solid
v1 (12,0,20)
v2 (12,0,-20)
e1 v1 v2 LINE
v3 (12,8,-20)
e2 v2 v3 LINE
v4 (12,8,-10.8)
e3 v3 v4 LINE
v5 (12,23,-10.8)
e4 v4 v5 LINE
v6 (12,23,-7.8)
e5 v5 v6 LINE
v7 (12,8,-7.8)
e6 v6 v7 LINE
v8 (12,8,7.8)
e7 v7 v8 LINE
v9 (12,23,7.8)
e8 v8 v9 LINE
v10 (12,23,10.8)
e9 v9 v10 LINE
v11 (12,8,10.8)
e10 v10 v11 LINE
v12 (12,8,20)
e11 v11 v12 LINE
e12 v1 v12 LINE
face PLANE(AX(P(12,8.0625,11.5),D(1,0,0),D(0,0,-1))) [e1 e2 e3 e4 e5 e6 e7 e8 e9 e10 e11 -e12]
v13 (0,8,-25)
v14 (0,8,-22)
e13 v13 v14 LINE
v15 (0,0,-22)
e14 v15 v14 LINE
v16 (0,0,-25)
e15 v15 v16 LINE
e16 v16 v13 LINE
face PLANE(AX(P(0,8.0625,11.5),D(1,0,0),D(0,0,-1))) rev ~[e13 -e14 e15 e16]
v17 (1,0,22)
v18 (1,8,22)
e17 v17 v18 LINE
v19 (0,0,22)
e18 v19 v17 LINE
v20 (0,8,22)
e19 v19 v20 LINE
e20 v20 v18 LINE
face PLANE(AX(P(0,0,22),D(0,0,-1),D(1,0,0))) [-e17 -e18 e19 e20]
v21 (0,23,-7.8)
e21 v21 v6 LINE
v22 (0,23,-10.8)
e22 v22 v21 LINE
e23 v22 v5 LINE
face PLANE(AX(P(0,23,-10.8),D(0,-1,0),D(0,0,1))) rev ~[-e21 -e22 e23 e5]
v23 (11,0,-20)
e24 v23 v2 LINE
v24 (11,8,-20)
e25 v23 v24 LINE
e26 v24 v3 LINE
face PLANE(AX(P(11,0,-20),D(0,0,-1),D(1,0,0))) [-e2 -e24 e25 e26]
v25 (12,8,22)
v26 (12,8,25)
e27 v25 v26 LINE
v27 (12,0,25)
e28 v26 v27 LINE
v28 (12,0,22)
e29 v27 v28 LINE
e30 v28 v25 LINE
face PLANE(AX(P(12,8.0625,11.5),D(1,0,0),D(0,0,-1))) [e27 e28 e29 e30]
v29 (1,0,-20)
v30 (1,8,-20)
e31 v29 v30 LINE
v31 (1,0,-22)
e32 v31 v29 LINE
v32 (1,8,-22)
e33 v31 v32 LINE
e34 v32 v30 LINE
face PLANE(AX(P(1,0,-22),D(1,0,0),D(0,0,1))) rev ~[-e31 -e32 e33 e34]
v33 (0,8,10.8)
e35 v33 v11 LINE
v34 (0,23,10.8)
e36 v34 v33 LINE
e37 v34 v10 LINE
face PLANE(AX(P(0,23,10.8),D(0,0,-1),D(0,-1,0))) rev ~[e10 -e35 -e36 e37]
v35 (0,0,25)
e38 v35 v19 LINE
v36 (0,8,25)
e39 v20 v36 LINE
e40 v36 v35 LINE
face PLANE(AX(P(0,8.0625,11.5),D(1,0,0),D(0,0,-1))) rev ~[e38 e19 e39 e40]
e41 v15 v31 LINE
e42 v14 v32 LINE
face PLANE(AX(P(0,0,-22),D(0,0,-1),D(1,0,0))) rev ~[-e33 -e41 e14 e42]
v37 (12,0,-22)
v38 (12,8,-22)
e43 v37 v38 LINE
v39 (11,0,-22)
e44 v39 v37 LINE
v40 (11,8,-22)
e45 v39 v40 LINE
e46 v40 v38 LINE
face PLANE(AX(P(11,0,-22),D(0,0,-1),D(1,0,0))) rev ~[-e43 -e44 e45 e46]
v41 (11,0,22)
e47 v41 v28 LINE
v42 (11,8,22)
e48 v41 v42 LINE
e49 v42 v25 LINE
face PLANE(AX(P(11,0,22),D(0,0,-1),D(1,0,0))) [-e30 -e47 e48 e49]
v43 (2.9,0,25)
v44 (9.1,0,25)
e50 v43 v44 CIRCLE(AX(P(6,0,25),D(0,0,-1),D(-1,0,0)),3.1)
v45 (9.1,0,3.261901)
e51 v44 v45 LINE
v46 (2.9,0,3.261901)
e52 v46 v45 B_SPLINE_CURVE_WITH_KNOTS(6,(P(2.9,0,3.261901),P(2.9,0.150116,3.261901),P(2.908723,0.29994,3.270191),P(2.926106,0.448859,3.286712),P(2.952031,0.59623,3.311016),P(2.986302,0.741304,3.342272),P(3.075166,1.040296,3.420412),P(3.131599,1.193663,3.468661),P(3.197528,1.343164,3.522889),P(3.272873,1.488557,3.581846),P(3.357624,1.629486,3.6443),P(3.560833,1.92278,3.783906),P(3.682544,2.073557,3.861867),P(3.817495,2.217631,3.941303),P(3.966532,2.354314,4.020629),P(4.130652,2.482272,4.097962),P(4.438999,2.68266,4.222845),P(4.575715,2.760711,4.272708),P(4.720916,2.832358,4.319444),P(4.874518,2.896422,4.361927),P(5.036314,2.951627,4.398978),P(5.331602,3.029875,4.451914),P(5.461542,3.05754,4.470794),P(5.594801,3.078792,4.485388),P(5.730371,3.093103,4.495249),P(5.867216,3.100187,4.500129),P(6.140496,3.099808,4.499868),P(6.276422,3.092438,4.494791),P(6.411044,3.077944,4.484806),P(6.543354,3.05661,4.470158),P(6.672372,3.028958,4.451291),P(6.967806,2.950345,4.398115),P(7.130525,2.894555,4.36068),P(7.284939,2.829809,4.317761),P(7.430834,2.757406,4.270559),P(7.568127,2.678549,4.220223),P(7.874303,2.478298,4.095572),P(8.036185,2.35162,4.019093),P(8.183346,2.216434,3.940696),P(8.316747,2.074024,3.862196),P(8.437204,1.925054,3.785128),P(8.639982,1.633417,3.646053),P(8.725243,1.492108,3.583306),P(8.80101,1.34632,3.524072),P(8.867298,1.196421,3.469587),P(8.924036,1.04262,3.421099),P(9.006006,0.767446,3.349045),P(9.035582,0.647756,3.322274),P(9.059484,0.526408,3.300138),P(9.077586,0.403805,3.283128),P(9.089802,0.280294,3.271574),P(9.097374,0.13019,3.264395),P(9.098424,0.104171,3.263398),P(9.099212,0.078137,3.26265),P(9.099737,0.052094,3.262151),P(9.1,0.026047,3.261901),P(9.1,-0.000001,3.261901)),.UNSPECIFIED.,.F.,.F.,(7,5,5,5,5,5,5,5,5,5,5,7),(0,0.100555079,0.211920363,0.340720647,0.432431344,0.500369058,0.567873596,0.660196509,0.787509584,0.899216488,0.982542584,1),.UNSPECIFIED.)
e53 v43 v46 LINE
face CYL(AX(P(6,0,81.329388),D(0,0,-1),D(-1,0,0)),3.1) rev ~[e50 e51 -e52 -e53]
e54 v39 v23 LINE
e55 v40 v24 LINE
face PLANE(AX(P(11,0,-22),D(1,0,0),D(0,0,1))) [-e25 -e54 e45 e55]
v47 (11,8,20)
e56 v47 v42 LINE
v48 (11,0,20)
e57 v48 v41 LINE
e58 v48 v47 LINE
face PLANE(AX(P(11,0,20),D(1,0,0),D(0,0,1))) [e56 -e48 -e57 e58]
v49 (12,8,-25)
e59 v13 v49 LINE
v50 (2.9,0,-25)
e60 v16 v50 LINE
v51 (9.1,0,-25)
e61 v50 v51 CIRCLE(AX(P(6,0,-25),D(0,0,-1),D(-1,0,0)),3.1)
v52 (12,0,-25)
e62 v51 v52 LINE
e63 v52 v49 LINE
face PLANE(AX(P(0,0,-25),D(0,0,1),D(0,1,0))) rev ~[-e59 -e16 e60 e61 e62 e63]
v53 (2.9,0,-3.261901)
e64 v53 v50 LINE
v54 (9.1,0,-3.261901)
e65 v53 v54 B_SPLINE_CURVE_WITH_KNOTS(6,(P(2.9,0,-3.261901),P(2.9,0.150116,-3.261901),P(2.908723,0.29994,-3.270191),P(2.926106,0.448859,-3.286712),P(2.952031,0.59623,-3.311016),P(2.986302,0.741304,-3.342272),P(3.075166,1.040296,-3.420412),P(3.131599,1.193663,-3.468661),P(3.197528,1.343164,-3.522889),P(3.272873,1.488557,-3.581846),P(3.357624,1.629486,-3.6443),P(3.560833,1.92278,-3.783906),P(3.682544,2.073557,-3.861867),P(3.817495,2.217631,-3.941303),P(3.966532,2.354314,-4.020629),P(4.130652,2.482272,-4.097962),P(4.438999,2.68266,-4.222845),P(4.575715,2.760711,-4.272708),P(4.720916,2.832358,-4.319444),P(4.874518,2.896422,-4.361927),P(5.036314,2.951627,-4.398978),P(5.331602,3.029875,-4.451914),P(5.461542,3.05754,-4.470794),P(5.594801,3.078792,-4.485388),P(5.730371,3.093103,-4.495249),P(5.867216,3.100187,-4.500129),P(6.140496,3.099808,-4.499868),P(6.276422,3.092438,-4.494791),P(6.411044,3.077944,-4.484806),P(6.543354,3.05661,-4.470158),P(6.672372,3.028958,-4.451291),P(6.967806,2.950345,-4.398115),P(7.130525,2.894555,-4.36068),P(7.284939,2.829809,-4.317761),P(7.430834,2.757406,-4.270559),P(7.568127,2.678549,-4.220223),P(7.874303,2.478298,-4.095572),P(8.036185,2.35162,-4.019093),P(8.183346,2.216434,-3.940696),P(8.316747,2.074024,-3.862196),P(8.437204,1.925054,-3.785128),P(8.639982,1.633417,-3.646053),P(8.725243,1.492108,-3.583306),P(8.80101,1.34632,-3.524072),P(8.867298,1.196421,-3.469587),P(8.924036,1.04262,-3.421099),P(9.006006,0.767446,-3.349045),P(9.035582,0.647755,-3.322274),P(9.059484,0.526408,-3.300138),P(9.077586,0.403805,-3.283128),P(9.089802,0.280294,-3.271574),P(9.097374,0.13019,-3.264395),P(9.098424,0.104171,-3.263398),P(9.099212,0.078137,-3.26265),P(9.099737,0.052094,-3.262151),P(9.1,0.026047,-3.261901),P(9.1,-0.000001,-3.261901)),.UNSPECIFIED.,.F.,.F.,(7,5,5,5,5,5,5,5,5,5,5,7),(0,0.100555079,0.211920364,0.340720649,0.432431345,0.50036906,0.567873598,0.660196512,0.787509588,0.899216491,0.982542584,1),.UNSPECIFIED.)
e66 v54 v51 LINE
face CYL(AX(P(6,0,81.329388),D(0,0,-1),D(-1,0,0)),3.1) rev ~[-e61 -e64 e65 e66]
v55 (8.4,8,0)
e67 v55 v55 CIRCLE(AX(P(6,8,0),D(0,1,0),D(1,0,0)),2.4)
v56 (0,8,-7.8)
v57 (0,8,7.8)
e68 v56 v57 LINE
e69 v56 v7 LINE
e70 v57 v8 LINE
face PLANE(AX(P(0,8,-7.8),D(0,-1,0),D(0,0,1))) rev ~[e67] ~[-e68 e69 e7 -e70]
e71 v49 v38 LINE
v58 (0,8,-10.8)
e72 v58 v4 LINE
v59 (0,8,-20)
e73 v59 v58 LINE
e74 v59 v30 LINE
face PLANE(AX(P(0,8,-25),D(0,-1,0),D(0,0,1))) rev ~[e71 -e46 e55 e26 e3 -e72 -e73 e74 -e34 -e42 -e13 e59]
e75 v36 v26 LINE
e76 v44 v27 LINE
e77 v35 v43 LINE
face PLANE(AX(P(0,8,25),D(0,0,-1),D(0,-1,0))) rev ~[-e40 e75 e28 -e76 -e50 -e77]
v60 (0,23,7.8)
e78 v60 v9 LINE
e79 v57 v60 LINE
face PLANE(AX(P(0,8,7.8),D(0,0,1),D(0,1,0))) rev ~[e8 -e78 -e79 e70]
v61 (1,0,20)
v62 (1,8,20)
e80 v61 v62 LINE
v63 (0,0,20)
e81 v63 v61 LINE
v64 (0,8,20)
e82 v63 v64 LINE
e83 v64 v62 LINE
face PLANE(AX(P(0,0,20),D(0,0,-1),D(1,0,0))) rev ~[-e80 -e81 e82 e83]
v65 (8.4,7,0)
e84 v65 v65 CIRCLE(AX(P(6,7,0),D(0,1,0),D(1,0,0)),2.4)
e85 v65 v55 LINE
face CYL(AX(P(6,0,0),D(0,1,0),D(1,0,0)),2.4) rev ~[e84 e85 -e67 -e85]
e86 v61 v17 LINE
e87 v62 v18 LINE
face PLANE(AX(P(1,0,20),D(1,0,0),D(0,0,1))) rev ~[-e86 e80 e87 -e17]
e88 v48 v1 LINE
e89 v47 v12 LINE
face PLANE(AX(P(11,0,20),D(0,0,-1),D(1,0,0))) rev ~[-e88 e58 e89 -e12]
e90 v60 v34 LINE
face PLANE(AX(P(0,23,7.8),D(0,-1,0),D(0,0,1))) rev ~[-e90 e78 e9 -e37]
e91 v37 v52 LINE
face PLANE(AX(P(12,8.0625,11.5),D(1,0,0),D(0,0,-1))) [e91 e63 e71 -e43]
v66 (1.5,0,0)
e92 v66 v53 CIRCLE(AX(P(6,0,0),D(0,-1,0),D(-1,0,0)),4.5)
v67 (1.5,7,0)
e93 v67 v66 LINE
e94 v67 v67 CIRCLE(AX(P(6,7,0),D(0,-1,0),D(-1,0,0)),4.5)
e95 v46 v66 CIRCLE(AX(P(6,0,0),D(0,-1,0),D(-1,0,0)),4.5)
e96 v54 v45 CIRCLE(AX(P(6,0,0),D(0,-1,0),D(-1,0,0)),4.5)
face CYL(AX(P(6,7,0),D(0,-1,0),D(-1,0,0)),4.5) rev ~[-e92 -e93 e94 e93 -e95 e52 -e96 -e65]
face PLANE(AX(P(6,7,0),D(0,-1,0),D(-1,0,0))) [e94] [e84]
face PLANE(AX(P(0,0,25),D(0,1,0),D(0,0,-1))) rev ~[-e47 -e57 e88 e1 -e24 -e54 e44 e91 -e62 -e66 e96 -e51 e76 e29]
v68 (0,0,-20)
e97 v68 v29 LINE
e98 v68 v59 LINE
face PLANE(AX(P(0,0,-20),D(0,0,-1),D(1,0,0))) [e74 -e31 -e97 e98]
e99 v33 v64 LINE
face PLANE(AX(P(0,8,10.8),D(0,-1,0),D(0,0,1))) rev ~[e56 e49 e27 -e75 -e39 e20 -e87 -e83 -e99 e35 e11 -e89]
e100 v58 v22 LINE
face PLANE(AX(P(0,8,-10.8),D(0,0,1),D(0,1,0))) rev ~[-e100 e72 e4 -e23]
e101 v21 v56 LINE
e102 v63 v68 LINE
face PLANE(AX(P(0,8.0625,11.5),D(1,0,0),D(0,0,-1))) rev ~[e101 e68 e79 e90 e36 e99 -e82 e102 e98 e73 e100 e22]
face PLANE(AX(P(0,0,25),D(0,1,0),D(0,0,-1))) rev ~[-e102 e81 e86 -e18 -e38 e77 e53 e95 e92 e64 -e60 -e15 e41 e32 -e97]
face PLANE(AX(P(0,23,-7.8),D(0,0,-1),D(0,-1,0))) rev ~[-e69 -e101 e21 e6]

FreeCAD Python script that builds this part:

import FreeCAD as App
import Part
import Sketcher

V = App.Vector

doc = App.newDocument("Part")
body = doc.addObject("PartDesign::Body", "Body")

# Sketch on YZ plane
sketch1 = doc.addObject("Sketcher::SketchObject", "Sketch")
body.addObject(sketch1)
sketch1.AttachmentSupport = (doc.YZ_Plane, [""])
sketch1.MapMode = "FlatFace"
sketch1.addGeometry([
    Part.LineSegment(V(0, 25, 0), V(0, -25, 0)),  # 0
    Part.LineSegment(V(0, -25, 0), V(8, -25, 0)),  # 1
    Part.LineSegment(V(8, -25, 0), V(8, -10.8, 0)),  # 2
    Part.LineSegment(V(8, -10.8, 0), V(23, -10.8, 0)),  # 3
    Part.LineSegment(V(23, -10.8, 0), V(23, -7.8, 0)),  # 4
    Part.LineSegment(V(23, -7.8, 0), V(8, -7.8, 0)),  # 5
    Part.LineSegment(V(8, -7.8, 0), V(8, 7.8, 0)),  # 6
    Part.LineSegment(V(8, 7.8, 0), V(23, 7.8, 0)),  # 7
    Part.LineSegment(V(23, 7.8, 0), V(23, 10.8, 0)),  # 8
    Part.LineSegment(V(23, 10.8, 0), V(8, 10.8, 0)),  # 9
    Part.LineSegment(V(8, 10.8, 0), V(8, 25, 0)),  # 10
    Part.LineSegment(V(8, 25, 0), V(0, 25, 0)),  # 11
], False)
sketch1.addConstraint([
    Sketcher.Constraint("Coincident", 0, 2, 1, 1),
    Sketcher.Constraint("Coincident", 1, 2, 2, 1),
    Sketcher.Constraint("Coincident", 2, 2, 3, 1),
    Sketcher.Constraint("Coincident", 3, 2, 4, 1),
    Sketcher.Constraint("Coincident", 4, 2, 5, 1),
    Sketcher.Constraint("Coincident", 5, 2, 6, 1),
    Sketcher.Constraint("Coincident", 6, 2, 7, 1),
    Sketcher.Constraint("Coincident", 7, 2, 8, 1),
    Sketcher.Constraint("Coincident", 8, 2, 9, 1),
    Sketcher.Constraint("Coincident", 9, 2, 10, 1),
    Sketcher.Constraint("Coincident", 10, 2, 11, 1),
    Sketcher.Constraint("Coincident", 11, 2, 0, 1),
    Sketcher.Constraint("Vertical", 0),
    Sketcher.Constraint("Horizontal", 1),
    Sketcher.Constraint("Vertical", 2),
    Sketcher.Constraint("Horizontal", 3),
    Sketcher.Constraint("Vertical", 4),
    Sketcher.Constraint("Horizontal", 5),
    Sketcher.Constraint("Vertical", 6),
    Sketcher.Constraint("Horizontal", 7),
    Sketcher.Constraint("Vertical", 8),
    Sketcher.Constraint("Horizontal", 9),
    Sketcher.Constraint("Vertical", 10),
    Sketcher.Constraint("Horizontal", 11),
    Sketcher.Constraint("Symmetric", 0, 2, 11, 2, -1, 1),
    Sketcher.Constraint("Symmetric", 4, 2, 7, 2, -1),
    Sketcher.Constraint("Symmetric", 2, 2, 9, 2, -1),
    Sketcher.Constraint("Vertical", 2, 2, 5, 2),
    Sketcher.Constraint("DistanceX", 1, 1, 1, 2, 8.0),
    Sketcher.Constraint("DistanceX", 3, 1, 3, 2, 15.0),
    Sketcher.Constraint("DistanceY", 0, 2, 0, 1, 50.0),
    Sketcher.Constraint("DistanceY", 4, 1, 4, 2, 3.0),
    Sketcher.Constraint("DistanceY", 2, 1, 2, 2, 14.2),
])
pad1 = doc.addObject("PartDesign::Pad", "Pad")
body.addObject(pad1)
pad1.Profile = sketch1
pad1.Length = 12

# Sketch on XZ plane
sketch2 = doc.addObject("Sketcher::SketchObject", "Sketch001")
body.addObject(sketch2)
sketch2.AttachmentSupport = (doc.XZ_Plane, [""])
sketch2.MapMode = "FlatFace"
sketch2.addGeometry(Part.Circle(V(6, 0, 0), V(0, 0, 1), 2.4), False)
sketch2.addConstraint([
    Sketcher.Constraint("PointOnObject", 0, 3, -1),
    Sketcher.Constraint("Diameter", 0, 4.8),
    Sketcher.Constraint("DistanceX", -1, 1, 0, 3, 6.0),
])
doc.recompute()
hole = doc.addObject("PartDesign::Hole", "Hole")
body.addObject(hole)
hole.Profile = sketch2
hole.ThreadType = "None"
hole.Diameter = 4.8
hole.DepthType = "ThroughAll"
hole.HoleCutType = "Counterbore"
hole.HoleCutDiameter = 9
hole.HoleCutDepth = 7

# Sketch on XY plane
sketch3 = doc.addObject("Sketcher::SketchObject", "Sketch002")
body.addObject(sketch3)
sketch3.AttachmentSupport = (doc.XY_Plane, [""])
sketch3.MapMode = "FlatFace"
sketch3.AttachmentOffset = App.Placement(V(0, 0, 25), App.Rotation())
sketch3.addGeometry(Part.Circle(V(6, 0, 0), V(0, 0, 1), 3.1), False)
sketch3.addConstraint([
    Sketcher.Constraint("PointOnObject", 0, 3, -1),
    Sketcher.Constraint("Diameter", 0, 6.2),
    Sketcher.Constraint("DistanceX", -1, 1, 0, 3, 6.0),
])
doc.recompute()
hole2 = doc.addObject("PartDesign::Hole", "Hole001")
body.addObject(hole2)
hole2.Profile = sketch3
hole2.ThreadType = "None"
hole2.Diameter = 6.2
hole2.DepthType = "ThroughAll"

# Sketch on XZ plane
sketch4 = doc.addObject("Sketcher::SketchObject", "Sketch003")
body.addObject(sketch4)
sketch4.AttachmentSupport = (doc.XZ_Plane, [""])
sketch4.MapMode = "FlatFace"
sketch4.addGeometry([
    Part.LineSegment(V(0, -20, 0), V(0, -22, 0)),  # 0
    Part.LineSegment(V(0, -22, 0), V(1, -22, 0)),  # 1
    Part.LineSegment(V(1, -22, 0), V(1, -20, 0)),  # 2
    Part.LineSegment(V(1, -20, 0), V(0, -20, 0)),  # 3
    Part.LineSegment(V(0, 22, 0), V(0, 20, 0)),  # 4
    Part.LineSegment(V(0, 20, 0), V(1, 20, 0)),  # 5
    Part.LineSegment(V(1, 20, 0), V(1, 22, 0)),  # 6
    Part.LineSegment(V(1, 22, 0), V(0, 22, 0)),  # 7
    Part.LineSegment(V(11, 22, 0), V(11, 20, 0)),  # 8
    Part.LineSegment(V(11, 20, 0), V(12, 20, 0)),  # 9
    Part.LineSegment(V(12, 20, 0), V(12, 22, 0)),  # 10
    Part.LineSegment(V(12, 22, 0), V(11, 22, 0)),  # 11
    Part.LineSegment(V(11, -20, 0), V(11, -22, 0)),  # 12
    Part.LineSegment(V(11, -22, 0), V(12, -22, 0)),  # 13
    Part.LineSegment(V(12, -22, 0), V(12, -20, 0)),  # 14
    Part.LineSegment(V(12, -20, 0), V(11, -20, 0)),  # 15
], False)
sketch4.addConstraint([
    Sketcher.Constraint("Coincident", 0, 2, 1, 1),
    Sketcher.Constraint("Coincident", 1, 2, 2, 1),
    Sketcher.Constraint("Coincident", 2, 2, 3, 1),
    Sketcher.Constraint("Coincident", 3, 2, 0, 1),
    Sketcher.Constraint("Coincident", 4, 2, 5, 1),
    Sketcher.Constraint("Coincident", 5, 2, 6, 1),
    Sketcher.Constraint("Coincident", 6, 2, 7, 1),
    Sketcher.Constraint("Coincident", 7, 2, 4, 1),
    Sketcher.Constraint("Coincident", 8, 2, 9, 1),
    Sketcher.Constraint("Coincident", 9, 2, 10, 1),
    Sketcher.Constraint("Coincident", 10, 2, 11, 1),
    Sketcher.Constraint("Coincident", 11, 2, 8, 1),
    Sketcher.Constraint("Coincident", 12, 2, 13, 1),
    Sketcher.Constraint("Coincident", 13, 2, 14, 1),
    Sketcher.Constraint("Coincident", 14, 2, 15, 1),
    Sketcher.Constraint("Coincident", 15, 2, 12, 1),
    Sketcher.Constraint("Vertical", 0),
    Sketcher.Constraint("Horizontal", 1),
    Sketcher.Constraint("Vertical", 2),
    Sketcher.Constraint("Horizontal", 3),
    Sketcher.Constraint("Vertical", 4),
    Sketcher.Constraint("Horizontal", 5),
    Sketcher.Constraint("Vertical", 6),
    Sketcher.Constraint("Horizontal", 7),
    Sketcher.Constraint("Vertical", 8),
    Sketcher.Constraint("Horizontal", 9),
    Sketcher.Constraint("Vertical", 10),
    Sketcher.Constraint("Horizontal", 11),
    Sketcher.Constraint("Vertical", 12),
    Sketcher.Constraint("Horizontal", 13),
    Sketcher.Constraint("Vertical", 14),
    Sketcher.Constraint("Horizontal", 15),
    Sketcher.Constraint("Symmetric", 3, 2, 4, 2, -1, 1),
    Sketcher.Constraint("Symmetric", 1, 2, 6, 2, -1),
    Sketcher.Constraint("Symmetric", 11, 2, 12, 2, -1),
    Sketcher.Constraint("Symmetric", 9, 2, 14, 2, -1),
    Sketcher.Constraint("PointOnObject", 0, 2, -2),
    Sketcher.Constraint("Horizontal", 5, 2, 8, 2),
    Sketcher.Constraint("Horizontal", 7, 2, 10, 2),
    Sketcher.Constraint("Equal", 7, 9),
    Sketcher.Constraint("DistanceX", 1, 1, 1, 2, 1.0),
    Sketcher.Constraint("DistanceY", 0, 2, 0, 1, 2.0),
    Sketcher.Constraint("DistanceY", 0, 2, -1, 1, 22.0),
    Sketcher.Constraint("DistanceX", -1, 1, 8, 2, 11.0),
])
pocket1 = doc.addObject("PartDesign::Pocket", "Pocket")
body.addObject(pocket1)
pocket1.Profile = sketch4
pocket1.Length = 12

doc.recompute()
